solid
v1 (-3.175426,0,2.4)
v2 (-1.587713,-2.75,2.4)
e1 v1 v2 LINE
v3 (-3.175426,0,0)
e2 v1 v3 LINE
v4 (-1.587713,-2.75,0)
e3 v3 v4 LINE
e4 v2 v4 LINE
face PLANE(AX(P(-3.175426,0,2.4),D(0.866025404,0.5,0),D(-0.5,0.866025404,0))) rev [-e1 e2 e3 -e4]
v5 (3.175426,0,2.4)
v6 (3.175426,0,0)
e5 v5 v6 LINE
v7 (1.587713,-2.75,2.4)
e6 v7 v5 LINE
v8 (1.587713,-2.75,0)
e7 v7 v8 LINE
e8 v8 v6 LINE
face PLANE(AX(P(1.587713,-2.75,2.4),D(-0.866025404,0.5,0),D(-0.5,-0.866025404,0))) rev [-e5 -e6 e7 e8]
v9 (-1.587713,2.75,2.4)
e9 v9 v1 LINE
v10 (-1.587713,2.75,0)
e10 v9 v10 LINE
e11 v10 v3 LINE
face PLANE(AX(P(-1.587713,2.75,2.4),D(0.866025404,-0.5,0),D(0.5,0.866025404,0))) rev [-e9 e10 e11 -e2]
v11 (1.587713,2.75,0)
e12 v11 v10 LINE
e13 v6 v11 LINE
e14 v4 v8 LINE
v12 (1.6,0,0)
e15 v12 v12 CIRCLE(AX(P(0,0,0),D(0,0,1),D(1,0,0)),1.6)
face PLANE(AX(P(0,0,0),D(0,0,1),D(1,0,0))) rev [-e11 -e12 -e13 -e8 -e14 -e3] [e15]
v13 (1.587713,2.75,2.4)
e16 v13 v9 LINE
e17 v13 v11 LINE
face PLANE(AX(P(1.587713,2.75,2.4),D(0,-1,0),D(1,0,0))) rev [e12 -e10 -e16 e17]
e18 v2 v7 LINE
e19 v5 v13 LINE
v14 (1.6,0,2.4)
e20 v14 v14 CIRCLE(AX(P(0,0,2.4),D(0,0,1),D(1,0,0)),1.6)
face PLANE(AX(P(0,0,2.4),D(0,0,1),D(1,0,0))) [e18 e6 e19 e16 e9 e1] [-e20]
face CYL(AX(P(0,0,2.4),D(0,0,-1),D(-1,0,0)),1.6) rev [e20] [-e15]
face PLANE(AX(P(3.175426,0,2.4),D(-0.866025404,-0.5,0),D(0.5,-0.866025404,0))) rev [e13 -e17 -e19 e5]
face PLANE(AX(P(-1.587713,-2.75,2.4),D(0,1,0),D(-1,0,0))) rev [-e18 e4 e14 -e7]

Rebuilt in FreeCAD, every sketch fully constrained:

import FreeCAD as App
import Part
import Sketcher
Q = App.Units.Quantity


def add_polygon(sketch, points):
    """Adds a closed chain of lines whose ends are joined by coincident constraints."""
    first, n = sketch.GeometryCount, len(points)
    for a, b in zip(points, points[1:] + points[:1]):
        sketch.addGeometry(Part.LineSegment(App.Vector(*a, 0), App.Vector(*b, 0)), False)
    for i in range(n):
        sketch.addConstraint(Sketcher.Constraint("Coincident", first + i, 2, first + (i + 1) % n, 1))

doc = App.newDocument("Part")
body = doc.addObject("PartDesign::Body", "Body")

sketch1 = body.newObject("Sketcher::SketchObject", "Sketch")
sketch1.AttachmentSupport = (doc.getObject("XY_Plane"), [""])
sketch1.MapMode = "FlatFace"
add_polygon(sketch1, [(3.175426, 0), (1.587713, 2.75), (-1.587713, 2.75), (-3.175426, 0), (-1.587713, -2.75), (1.587713, -2.75)])
sketch1.addGeometry(Part.Circle(App.Vector(0, 0, 0), App.Vector(0, 0, 1), 1.6), False)
sketch1.addConstraint(Sketcher.Constraint("Horizontal", 1))
sketch1.addConstraint(Sketcher.Constraint("Horizontal", 4))
sketch1.addConstraint(Sketcher.Constraint("Coincident", 6, 3, -1, 1))
sketch1.addConstraint(Sketcher.Constraint("Symmetric", 0, 2, 3, 2, -1, 1))
sketch1.addConstraint(Sketcher.Constraint("Symmetric", 2, 2, 5, 2, -1, 1))
sketch1.addConstraint(Sketcher.Constraint("PointOnObject", 2, 2, -1))
sketch1.addConstraint(Sketcher.Constraint("Parallel", 2, 5))
sketch1.addConstraint(Sketcher.Constraint("Vertical", 1, 2, 3, 2))
sketch1.addConstraint(Sketcher.Constraint("Diameter", 6, Q("3.2 mm")))
sketch1.addConstraint(Sketcher.Constraint("Angle", 0, Q("120 deg")))
sketch1.addConstraint(Sketcher.Constraint("DistanceY", 3, 2, 1, 2, Q("5.5 mm")))
sketch1.addConstraint(Sketcher.Constraint("DistanceX", 1, 2, 1, 1, Q("3.175426 mm")))
pad1 = body.newObject("PartDesign::Pad", "Pad")
pad1.Profile = sketch1
pad1.Length = 2.4

doc.recompute()
